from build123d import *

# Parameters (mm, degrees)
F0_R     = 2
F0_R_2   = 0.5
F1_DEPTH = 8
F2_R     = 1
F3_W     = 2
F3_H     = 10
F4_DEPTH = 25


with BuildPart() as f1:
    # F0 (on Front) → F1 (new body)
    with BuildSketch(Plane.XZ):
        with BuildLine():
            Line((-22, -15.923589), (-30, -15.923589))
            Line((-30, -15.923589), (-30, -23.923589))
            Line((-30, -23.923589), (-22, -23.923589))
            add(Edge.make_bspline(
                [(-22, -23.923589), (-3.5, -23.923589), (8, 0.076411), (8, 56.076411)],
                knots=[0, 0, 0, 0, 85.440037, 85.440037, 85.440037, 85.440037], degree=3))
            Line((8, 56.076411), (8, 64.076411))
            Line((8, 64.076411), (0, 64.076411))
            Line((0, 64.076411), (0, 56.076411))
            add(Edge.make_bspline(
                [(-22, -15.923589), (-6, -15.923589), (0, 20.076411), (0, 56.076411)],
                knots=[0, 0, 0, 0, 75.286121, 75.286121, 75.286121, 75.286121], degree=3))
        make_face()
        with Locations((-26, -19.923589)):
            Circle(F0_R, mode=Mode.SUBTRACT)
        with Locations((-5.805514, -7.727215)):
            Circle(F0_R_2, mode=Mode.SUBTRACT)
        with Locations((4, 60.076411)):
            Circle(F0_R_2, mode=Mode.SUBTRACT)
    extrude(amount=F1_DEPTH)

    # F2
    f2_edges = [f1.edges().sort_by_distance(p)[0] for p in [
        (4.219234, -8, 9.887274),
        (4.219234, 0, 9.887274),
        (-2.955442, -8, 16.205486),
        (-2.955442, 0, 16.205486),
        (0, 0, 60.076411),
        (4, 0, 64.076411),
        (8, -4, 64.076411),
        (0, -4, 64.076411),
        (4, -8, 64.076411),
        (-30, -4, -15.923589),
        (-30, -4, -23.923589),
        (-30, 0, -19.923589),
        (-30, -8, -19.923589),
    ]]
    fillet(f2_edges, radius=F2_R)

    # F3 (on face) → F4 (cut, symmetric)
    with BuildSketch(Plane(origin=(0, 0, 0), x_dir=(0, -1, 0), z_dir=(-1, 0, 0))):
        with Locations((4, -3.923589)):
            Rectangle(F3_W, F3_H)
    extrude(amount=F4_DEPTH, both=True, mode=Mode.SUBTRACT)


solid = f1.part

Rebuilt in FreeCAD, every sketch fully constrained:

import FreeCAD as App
import Part
import Sketcher

V = App.Vector


def edges_at(feature, points):
    """Names of the edges that pass closest to the given points."""
    edges = feature.Shape.Edges
    near = lambda p: min(range(len(edges)), key=lambda i: edges[i].distToShape(Part.Vertex(*p))[0])
    return sorted({f"Edge{near(p) + 1}" for p in points})


def add_polygon(sketch, points):
    """Adds a closed chain of lines whose ends are joined by coincident constraints."""
    first, n = sketch.GeometryCount, len(points)
    for a, b in zip(points, points[1:] + points[:1]):
        sketch.addGeometry(Part.LineSegment(App.Vector(*a, 0), App.Vector(*b, 0)), False)
    for i in range(n):
        sketch.addConstraint(Sketcher.Constraint("Coincident", first + i, 2, first + (i + 1) % n, 1))

doc = App.newDocument("Part")
body = doc.addObject("PartDesign::Body", "Body")

# Sketch on XZ plane
sketch1 = doc.addObject("Sketcher::SketchObject", "Sketch")
body.addObject(sketch1)
sketch1.AttachmentSupport = (doc.XZ_Plane, [""])
sketch1.MapMode = "FlatFace"
sketch1.addGeometry(Part.LineSegment(V(-22, -15.923589, 0), V(-30, -15.923589, 0)), False)
sketch1.addGeometry(Part.LineSegment(V(-30, -15.923589, 0), V(-30, -23.923589, 0)), False)
sketch1.addGeometry(Part.LineSegment(V(-30, -23.923589, 0), V(-22, -23.923589, 0)), False)
sketch1.addGeometry(Part.BSplineCurve([V(-22, -23.923589, 0), V(-3.5, -23.923589, 0), V(8, 0.076411, 0), V(8, 56.076411, 0)], [4, 4], [0, 85.440037], False, 3, [1, 1, 1, 1], False), False)
sketch1.addGeometry(Part.LineSegment(V(8, 56.076411, 0), V(8, 64.076411, 0)), False)
sketch1.addGeometry(Part.LineSegment(V(8, 64.076411, 0), V(0, 64.076411, 0)), False)
sketch1.addGeometry(Part.LineSegment(V(0, 64.076411, 0), V(0, 56.076411, 0)), False)
sketch1.addGeometry(Part.BSplineCurve([V(-22, -15.923589, 0), V(-6, -15.923589, 0), V(0, 20.076411, 0), V(0, 56.076411, 0)], [4, 4], [0, 75.286121], False, 3, [1, 1, 1, 1], False), False)
sketch1.addGeometry(Part.Circle(V(-26, -19.923589, 0), V(0, 0, 1), 2), False)
sketch1.addGeometry(Part.Circle(V(-5.805514, -7.727215, 0), V(0, 0, 1), 0.5), False)
sketch1.addGeometry(Part.Circle(V(4, 60.076411, 0), V(0, 0, 1), 0.5), False)
sketch1.addConstraint(Sketcher.Constraint("Block", 3))
sketch1.addConstraint(Sketcher.Constraint("Block", 7))
sketch1.addConstraint(Sketcher.Constraint("Coincident", 0, 2, 1, 1))
sketch1.addConstraint(Sketcher.Constraint("Coincident", 1, 2, 2, 1))
sketch1.addConstraint(Sketcher.Constraint("Coincident", 2, 2, 3, 1))
sketch1.addConstraint(Sketcher.Constraint("Coincident", 3, 2, 4, 1))
sketch1.addConstraint(Sketcher.Constraint("Coincident", 4, 2, 5, 1))
sketch1.addConstraint(Sketcher.Constraint("Coincident", 5, 2, 6, 1))
sketch1.addConstraint(Sketcher.Constraint("Coincident", 6, 2, 7, 2))
sketch1.addConstraint(Sketcher.Constraint("Coincident", 7, 1, 0, 1))
sketch1.addConstraint(Sketcher.Constraint("Horizontal", 0))
sketch1.addConstraint(Sketcher.Constraint("Vertical", 1))
sketch1.addConstraint(Sketcher.Constraint("Horizontal", 2))
sketch1.addConstraint(Sketcher.Constraint("Vertical", 4))
sketch1.addConstraint(Sketcher.Constraint("Horizontal", 5))
sketch1.addConstraint(Sketcher.Constraint("Vertical", 6))
sketch1.addConstraint(Sketcher.Constraint("Diameter", 8, 4.0))
sketch1.addConstraint(Sketcher.Constraint("Diameter", 9, 1.0))
sketch1.addConstraint(Sketcher.Constraint("Diameter", 10, 1.0))
sketch1.addConstraint(Sketcher.Constraint("DistanceX", 0, 2, 0, 1, 8.0))
sketch1.addConstraint(Sketcher.Constraint("DistanceY", 4, 1, 4, 2, 8.0))
sketch1.addConstraint(Sketcher.Constraint("DistanceX", 8, 3, -1, 1, 26.0))
sketch1.addConstraint(Sketcher.Constraint("DistanceX", -1, 1, 10, 3, 4.0))
sketch1.addConstraint(Sketcher.Constraint("DistanceY", 8, 3, 10, 3, 80.0))
sketch1.addConstraint(Sketcher.Constraint("DistanceY", 8, 3, 0, 2, 4.0))
sketch1.addConstraint(Sketcher.Constraint("DistanceX", 9, 3, -1, 1, 5.805514))
sketch1.addConstraint(Sketcher.Constraint("DistanceY", 9, 3, -1, 1, 7.727215))
pad1 = doc.addObject("PartDesign::Pad", "Pad")
body.addObject(pad1)
pad1.Profile = sketch1
pad1.Length = 8
doc.recompute()

fillet = doc.addObject("PartDesign::Fillet", "Fillet")
body.addObject(fillet)
fillet.Base = (pad1, edges_at(pad1, [
    (4.219, -8, 9.887),
    (4.219, 0, 9.887),
    (-2.955, -8, 16.205),
    (-2.955, 0, 16.205),
    (0, 0, 60.076),
    (4, 0, 64.076),
    (8, -4, 64.076),
    (0, -4, 64.076),
    (4, -8, 64.076),
    (-30, -4, -15.924),
    (-30, -4, -23.924),
    (-30, 0, -19.924),
    (-30, -8, -19.924),
]))
fillet.Radius = 1

# Sketch on YZ plane
sketch2 = doc.addObject("Sketcher::SketchObject", "Sketch001")
body.addObject(sketch2)
sketch2.AttachmentSupport = (doc.YZ_Plane, [""])
sketch2.MapMode = "FlatFace"
add_polygon(sketch2, [(-3, 1.1), (-3, -8.9), (-5, -8.9), (-5, 1.1)])  # lines 0-3
sketch2.addConstraint(Sketcher.Constraint("Vertical", 0))
sketch2.addConstraint(Sketcher.Constraint("Horizontal", 1))
sketch2.addConstraint(Sketcher.Constraint("Vertical", 2))
sketch2.addConstraint(Sketcher.Constraint("Horizontal", 3))
sketch2.addConstraint(Sketcher.Constraint("DistanceX", 1, 2, 1, 1, 2.0))
sketch2.addConstraint(Sketcher.Constraint("DistanceY", 0, 2, 0, 1, 10.0))
sketch2.addConstraint(Sketcher.Constraint("DistanceX", 0, 2, -1, 1, 3.0))
sketch2.addConstraint(Sketcher.Constraint("DistanceY", 0, 2, -1, 1, 8.923589))
pocket1 = doc.addObject("PartDesign::Pocket", "Pocket")
body.addObject(pocket1)
pocket1.Profile = sketch2
pocket1.Length = 50
pocket1.Midplane = True

doc.recompute()
